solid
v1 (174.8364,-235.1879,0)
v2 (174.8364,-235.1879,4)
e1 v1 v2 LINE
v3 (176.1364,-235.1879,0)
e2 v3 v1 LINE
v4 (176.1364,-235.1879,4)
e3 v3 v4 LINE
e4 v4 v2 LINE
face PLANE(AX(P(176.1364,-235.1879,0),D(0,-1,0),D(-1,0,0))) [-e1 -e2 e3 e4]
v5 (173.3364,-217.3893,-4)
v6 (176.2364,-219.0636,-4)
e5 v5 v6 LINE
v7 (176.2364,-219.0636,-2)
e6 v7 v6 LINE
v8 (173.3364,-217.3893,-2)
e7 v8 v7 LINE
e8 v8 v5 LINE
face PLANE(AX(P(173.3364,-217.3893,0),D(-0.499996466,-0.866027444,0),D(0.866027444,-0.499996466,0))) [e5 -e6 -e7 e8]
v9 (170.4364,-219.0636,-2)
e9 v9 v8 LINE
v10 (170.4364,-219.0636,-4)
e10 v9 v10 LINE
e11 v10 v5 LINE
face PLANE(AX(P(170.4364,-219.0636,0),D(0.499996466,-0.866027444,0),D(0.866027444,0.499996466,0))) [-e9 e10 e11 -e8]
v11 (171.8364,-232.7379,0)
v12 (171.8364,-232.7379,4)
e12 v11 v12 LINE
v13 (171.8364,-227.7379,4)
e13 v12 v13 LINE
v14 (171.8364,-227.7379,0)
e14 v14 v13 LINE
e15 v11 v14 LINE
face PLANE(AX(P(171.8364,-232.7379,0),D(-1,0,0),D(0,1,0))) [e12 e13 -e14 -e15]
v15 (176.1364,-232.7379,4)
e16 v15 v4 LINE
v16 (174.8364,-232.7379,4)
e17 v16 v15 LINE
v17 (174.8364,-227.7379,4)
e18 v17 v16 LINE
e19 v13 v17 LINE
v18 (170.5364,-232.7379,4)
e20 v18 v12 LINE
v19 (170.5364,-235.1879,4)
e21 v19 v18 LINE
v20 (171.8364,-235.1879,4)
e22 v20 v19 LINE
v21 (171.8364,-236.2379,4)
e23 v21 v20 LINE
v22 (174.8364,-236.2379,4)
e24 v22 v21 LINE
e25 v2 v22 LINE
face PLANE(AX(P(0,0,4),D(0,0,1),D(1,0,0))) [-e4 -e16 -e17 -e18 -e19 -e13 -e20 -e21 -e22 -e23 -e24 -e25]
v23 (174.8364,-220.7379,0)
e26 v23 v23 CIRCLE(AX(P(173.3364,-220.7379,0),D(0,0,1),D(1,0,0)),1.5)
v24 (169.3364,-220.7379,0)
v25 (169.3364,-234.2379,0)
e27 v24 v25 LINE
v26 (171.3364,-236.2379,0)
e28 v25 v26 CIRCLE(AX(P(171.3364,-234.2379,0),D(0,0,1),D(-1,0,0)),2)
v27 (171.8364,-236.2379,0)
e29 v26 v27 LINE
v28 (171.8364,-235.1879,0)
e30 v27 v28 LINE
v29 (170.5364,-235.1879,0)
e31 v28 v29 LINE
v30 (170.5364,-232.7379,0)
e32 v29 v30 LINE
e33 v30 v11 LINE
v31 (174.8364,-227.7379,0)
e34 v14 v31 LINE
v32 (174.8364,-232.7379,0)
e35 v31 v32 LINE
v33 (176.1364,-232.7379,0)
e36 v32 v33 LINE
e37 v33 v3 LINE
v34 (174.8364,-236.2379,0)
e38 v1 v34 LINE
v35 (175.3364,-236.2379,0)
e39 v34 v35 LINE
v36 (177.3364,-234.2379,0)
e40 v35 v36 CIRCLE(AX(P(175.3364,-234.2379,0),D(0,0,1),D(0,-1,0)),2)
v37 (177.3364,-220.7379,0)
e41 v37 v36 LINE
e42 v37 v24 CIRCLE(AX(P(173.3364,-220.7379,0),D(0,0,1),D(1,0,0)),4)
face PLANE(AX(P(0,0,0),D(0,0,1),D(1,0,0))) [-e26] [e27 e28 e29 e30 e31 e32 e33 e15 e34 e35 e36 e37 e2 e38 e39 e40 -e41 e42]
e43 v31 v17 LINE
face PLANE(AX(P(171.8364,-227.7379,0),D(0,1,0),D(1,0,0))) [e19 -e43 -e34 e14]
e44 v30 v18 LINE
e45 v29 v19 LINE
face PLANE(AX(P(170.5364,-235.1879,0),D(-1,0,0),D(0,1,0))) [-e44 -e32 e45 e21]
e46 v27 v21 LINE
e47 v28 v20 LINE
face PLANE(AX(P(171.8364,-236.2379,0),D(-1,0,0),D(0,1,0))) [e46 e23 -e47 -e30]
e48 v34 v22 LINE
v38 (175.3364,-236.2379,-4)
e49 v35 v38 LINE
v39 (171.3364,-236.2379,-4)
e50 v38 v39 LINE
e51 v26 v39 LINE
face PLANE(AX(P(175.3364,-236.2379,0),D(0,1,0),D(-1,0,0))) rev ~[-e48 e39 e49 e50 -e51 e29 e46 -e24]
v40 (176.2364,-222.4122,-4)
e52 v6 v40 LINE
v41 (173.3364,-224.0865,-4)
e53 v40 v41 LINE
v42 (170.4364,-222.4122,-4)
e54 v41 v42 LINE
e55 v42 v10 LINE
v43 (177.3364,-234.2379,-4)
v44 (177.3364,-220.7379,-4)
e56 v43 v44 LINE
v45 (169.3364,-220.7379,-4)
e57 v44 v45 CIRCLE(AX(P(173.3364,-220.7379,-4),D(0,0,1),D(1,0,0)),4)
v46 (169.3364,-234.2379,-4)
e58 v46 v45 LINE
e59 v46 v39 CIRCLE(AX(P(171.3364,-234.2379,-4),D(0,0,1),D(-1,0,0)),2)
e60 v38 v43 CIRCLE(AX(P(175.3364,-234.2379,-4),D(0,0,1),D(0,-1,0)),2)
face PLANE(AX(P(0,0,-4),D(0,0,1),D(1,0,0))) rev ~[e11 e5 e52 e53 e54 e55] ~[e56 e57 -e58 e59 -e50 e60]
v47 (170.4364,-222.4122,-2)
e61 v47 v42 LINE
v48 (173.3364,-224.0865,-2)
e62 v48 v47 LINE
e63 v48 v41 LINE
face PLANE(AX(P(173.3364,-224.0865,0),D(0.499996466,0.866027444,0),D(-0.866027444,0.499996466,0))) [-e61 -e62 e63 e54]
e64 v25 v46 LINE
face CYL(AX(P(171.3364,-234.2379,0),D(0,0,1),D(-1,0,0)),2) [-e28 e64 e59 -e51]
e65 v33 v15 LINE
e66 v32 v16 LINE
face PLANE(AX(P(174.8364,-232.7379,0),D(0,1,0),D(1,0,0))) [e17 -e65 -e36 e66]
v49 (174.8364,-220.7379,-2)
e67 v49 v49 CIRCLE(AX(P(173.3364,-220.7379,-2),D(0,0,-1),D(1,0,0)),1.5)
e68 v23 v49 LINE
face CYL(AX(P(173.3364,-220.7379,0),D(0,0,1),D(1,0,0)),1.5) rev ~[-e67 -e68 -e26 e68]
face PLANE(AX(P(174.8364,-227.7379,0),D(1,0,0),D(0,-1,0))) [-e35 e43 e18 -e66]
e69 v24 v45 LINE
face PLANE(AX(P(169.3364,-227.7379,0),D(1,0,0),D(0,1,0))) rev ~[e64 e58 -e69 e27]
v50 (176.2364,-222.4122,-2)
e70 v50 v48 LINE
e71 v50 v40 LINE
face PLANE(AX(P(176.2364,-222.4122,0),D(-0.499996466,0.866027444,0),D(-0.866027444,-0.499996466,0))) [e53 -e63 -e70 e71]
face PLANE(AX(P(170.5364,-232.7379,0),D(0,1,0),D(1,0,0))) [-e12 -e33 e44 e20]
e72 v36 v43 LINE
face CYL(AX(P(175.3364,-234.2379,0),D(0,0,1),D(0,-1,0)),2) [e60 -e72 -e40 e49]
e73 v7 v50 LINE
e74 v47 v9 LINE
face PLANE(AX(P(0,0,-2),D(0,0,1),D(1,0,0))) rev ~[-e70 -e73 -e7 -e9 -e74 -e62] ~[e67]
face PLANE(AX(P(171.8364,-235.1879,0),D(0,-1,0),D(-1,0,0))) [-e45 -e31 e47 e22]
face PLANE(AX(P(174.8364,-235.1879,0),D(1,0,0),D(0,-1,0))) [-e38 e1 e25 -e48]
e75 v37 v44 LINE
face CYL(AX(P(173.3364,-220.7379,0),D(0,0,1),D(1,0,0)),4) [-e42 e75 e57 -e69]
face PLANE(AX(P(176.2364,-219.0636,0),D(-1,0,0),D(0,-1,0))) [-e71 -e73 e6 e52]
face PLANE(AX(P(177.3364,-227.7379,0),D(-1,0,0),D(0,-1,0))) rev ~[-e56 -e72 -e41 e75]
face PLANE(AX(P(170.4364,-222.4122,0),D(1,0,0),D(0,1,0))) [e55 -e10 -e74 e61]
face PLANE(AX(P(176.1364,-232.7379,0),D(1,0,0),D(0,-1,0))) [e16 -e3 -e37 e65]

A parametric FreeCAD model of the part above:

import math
import FreeCAD as App
import Part
import Sketcher

V = App.Vector
Q = App.Units.Quantity


def add_polygon(sketch, points):
    """Adds a closed chain of lines whose ends are joined by coincident constraints."""
    first, n = sketch.GeometryCount, len(points)
    for a, b in zip(points, points[1:] + points[:1]):
        sketch.addGeometry(Part.LineSegment(App.Vector(*a, 0), App.Vector(*b, 0)), False)
    for i in range(n):
        sketch.addConstraint(Sketcher.Constraint("Coincident", first + i, 2, first + (i + 1) % n, 1))

doc = App.newDocument("Part")
body = doc.addObject("PartDesign::Body", "Body")

# Sketch on XY plane
sketch1 = body.newObject("Sketcher::SketchObject", "Sketch")
sketch1.AttachmentSupport = (doc.getObject("XY_Plane"), [""])
sketch1.MapMode = "FlatFace"
add_polygon(sketch1, [(174.8, -232.7), (174.8, -227.7), (171.8, -227.7), (171.8, -232.7), (170.5, -232.7), (170.5, -235.2), (171.8, -235.2), (171.8, -236.2), (174.8, -236.2), (174.8, -235.2), (176.1, -235.2), (176.1, -232.7)])  # lines 0-11
sketch1.addConstraint(Sketcher.Constraint("Vertical", 0))
sketch1.addConstraint(Sketcher.Constraint("Horizontal", 1))
sketch1.addConstraint(Sketcher.Constraint("Vertical", 2))
sketch1.addConstraint(Sketcher.Constraint("Horizontal", 3))
sketch1.addConstraint(Sketcher.Constraint("Vertical", 4))
sketch1.addConstraint(Sketcher.Constraint("Horizontal", 5))
sketch1.addConstraint(Sketcher.Constraint("Vertical", 6))
sketch1.addConstraint(Sketcher.Constraint("Horizontal", 7))
sketch1.addConstraint(Sketcher.Constraint("Vertical", 8))
sketch1.addConstraint(Sketcher.Constraint("Horizontal", 9))
sketch1.addConstraint(Sketcher.Constraint("Vertical", 10))
sketch1.addConstraint(Sketcher.Constraint("Horizontal", 11))
sketch1.addConstraint(Sketcher.Constraint("Horizontal", 5, 2, 8, 2))
sketch1.addConstraint(Sketcher.Constraint("Horizontal", 3, 2, 10, 2))
sketch1.addConstraint(Sketcher.Constraint("Vertical", 2, 2, 5, 2))
sketch1.addConstraint(Sketcher.Constraint("Vertical", 0, 2, 7, 2))
sketch1.addConstraint(Sketcher.Constraint("Equal", 5, 9))
sketch1.addConstraint(Sketcher.Constraint("DistanceX", 1, 2, 1, 1, 3.0))
sketch1.addConstraint(Sketcher.Constraint("DistanceY", 0, 1, 0, 2, 5.0))
sketch1.addConstraint(Sketcher.Constraint("DistanceX", 3, 2, 3, 1, 1.3))
sketch1.addConstraint(Sketcher.Constraint("DistanceY", 4, 2, 4, 1, 2.45))
sketch1.addConstraint(Sketcher.Constraint("DistanceY", 6, 2, 6, 1, 1.05))
sketch1.addConstraint(Sketcher.Constraint("DistanceY", 0, 2, -1, 1, 227.738))
sketch1.addConstraint(Sketcher.Constraint("DistanceX", -1, 1, 0, 2, 174.8364))
pad1 = body.newObject("PartDesign::Pad", "Pad")
pad1.Profile = sketch1
pad1.Length = 4

# Sketch on XY plane
sketch2 = body.newObject("Sketcher::SketchObject", "Sketch001")
sketch2.AttachmentSupport = (doc.getObject("XY_Plane"), [""])
sketch2.MapMode = "FlatFace"
sketch2.addGeometry(Part.LineSegment(V(177.3, -234.2, 0), V(177.3, -220.7, 0)), False)
sketch2.addGeometry(Part.ArcOfCircle(Part.Circle(V(173.3, -220.7, 0), V(0, 0, 1), 4), math.radians(0), math.radians(180)), False)
sketch2.addGeometry(Part.LineSegment(V(169.3, -220.7, 0), V(169.3, -234.2, 0)), False)
sketch2.addGeometry(Part.ArcOfCircle(Part.Circle(V(171.3, -234.2, 0), V(0, 0, 1), 2), math.radians(180), math.radians(270)), False)
sketch2.addGeometry(Part.LineSegment(V(171.3, -236.2, 0), V(175.3, -236.2, 0)), False)
sketch2.addGeometry(Part.ArcOfCircle(Part.Circle(V(175.3, -234.2, 0), V(0, 0, 1), 2), math.radians(-90), math.radians(0)), False)
sketch2.addGeometry(Part.Circle(V(173.3, -220.7, 0), V(0, 0, 1), 1.5), False)
sketch2.addConstraint(Sketcher.Constraint("Tangent", 0, 2, 1, 1))
sketch2.addConstraint(Sketcher.Constraint("Tangent", 1, 2, 2, 1))
sketch2.addConstraint(Sketcher.Constraint("Tangent", 2, 2, 3, 1))
sketch2.addConstraint(Sketcher.Constraint("Tangent", 3, 2, 4, 1))
sketch2.addConstraint(Sketcher.Constraint("Tangent", 4, 2, 5, 1))
sketch2.addConstraint(Sketcher.Constraint("Tangent", 5, 2, 0, 1))
sketch2.addConstraint(Sketcher.Constraint("Vertical", 0))
sketch2.addConstraint(Sketcher.Constraint("Vertical", 2))
sketch2.addConstraint(Sketcher.Constraint("Horizontal", 4))
sketch2.addConstraint(Sketcher.Constraint("Coincident", 6, 3, 1, 3))
sketch2.addConstraint(Sketcher.Constraint("Equal", 3, 5))
sketch2.addConstraint(Sketcher.Constraint("Diameter", 6, 3.0))
sketch2.addConstraint(Sketcher.Constraint("Radius", 3, 2.0))
sketch2.addConstraint(Sketcher.Constraint("Radius", 1, 4.0))
sketch2.addConstraint(Sketcher.Constraint("DistanceY", 0, 1, 0, 2, 13.5))
sketch2.addConstraint(Sketcher.Constraint("DistanceY", 1, 3, -1, 1, 220.738))
sketch2.addConstraint(Sketcher.Constraint("DistanceX", -1, 1, 1, 3, 173.3364))
pad2 = body.newObject("PartDesign::Pad", "Pad001")
pad2.Profile = sketch2
pad2.Length = 4
pad2.Reversed = True

# Sketch on XY plane
sketch3 = body.newObject("Sketcher::SketchObject", "Sketch002")
sketch3.AttachmentSupport = (doc.getObject("XY_Plane"), [""])
sketch3.MapMode = "FlatFace"
add_polygon(sketch3, [(176.2, -219.1), (173.3, -217.4), (170.4, -219.1), (170.4, -222.4), (173.3, -224.1), (176.2, -222.4)])  # lines 0-5
sketch3.addGeometry(Part.Circle(V(173.3, -220.7, 0), V(0, 0, 1), 1.5), False)  # 6
sketch3.addConstraint(Sketcher.Constraint("Vertical", 2))
sketch3.addConstraint(Sketcher.Constraint("Vertical", 5))
sketch3.addConstraint(Sketcher.Constraint("Parallel", 0, 3))
sketch3.addConstraint(Sketcher.Constraint("Parallel", 1, 4))
sketch3.addConstraint(Sketcher.Constraint("Horizontal", 2, 2, 4, 2))
sketch3.addConstraint(Sketcher.Constraint("Horizontal", 1, 2, 5, 2))
sketch3.addConstraint(Sketcher.Constraint("Vertical", 6, 3, 0, 2))
sketch3.addConstraint(Sketcher.Constraint("Vertical", 0, 2, 3, 2))
sketch3.addConstraint(Sketcher.Constraint("Diameter", 6, 3.0))
sketch3.addConstraint(Sketcher.Constraint("DistanceX", 2, 2, 4, 2, 5.8))
sketch3.addConstraint(Sketcher.Constraint("Angle", 0, Q("150.0002 deg")))
sketch3.addConstraint(Sketcher.Constraint("DistanceY", 2, 2, 2, 1, 3.3486))
sketch3.addConstraint(Sketcher.Constraint("DistanceY", 6, 3, -1, 1, 220.738))
sketch3.addConstraint(Sketcher.Constraint("DistanceX", -1, 1, 6, 3, 173.3364))
sketch3.addConstraint(Sketcher.Constraint("DistanceY", 0, 2, -1, 1, 217.3893))
pocket1 = body.newObject("PartDesign::Pocket", "Pocket")
pocket1.Profile = sketch3
pocket1.Length = 4

# Sketch on XY plane
sketch4 = body.newObject("Sketcher::SketchObject", "Sketch003")
sketch4.AttachmentSupport = (doc.getObject("XY_Plane"), [""])
sketch4.MapMode = "FlatFace"
add_polygon(sketch4, [(176.2, -219.1), (173.3, -217.4), (170.4, -219.1), (170.4, -222.4), (173.3, -224.1), (176.2, -222.4)])  # lines 0-5
sketch4.addGeometry(Part.Circle(V(173.3, -220.7, 0), V(0, 0, 1), 1.5), False)  # 6
sketch4.addConstraint(Sketcher.Constraint("Vertical", 2))
sketch4.addConstraint(Sketcher.Constraint("Vertical", 5))
sketch4.addConstraint(Sketcher.Constraint("Parallel", 0, 3))
sketch4.addConstraint(Sketcher.Constraint("Parallel", 1, 4))
sketch4.addConstraint(Sketcher.Constraint("Horizontal", 2, 2, 4, 2))
sketch4.addConstraint(Sketcher.Constraint("Horizontal", 1, 2, 5, 2))
sketch4.addConstraint(Sketcher.Constraint("Vertical", 6, 3, 0, 2))
sketch4.addConstraint(Sketcher.Constraint("Vertical", 0, 2, 3, 2))
sketch4.addConstraint(Sketcher.Constraint("Diameter", 6, 3.0))
sketch4.addConstraint(Sketcher.Constraint("DistanceX", 2, 2, 4, 2, 5.8))
sketch4.addConstraint(Sketcher.Constraint("Angle", 0, Q("150.0002 deg")))
sketch4.addConstraint(Sketcher.Constraint("DistanceY", 2, 2, 2, 1, 3.3486))
sketch4.addConstraint(Sketcher.Constraint("DistanceY", 6, 3, -1, 1, 220.738))
sketch4.addConstraint(Sketcher.Constraint("DistanceX", -1, 1, 6, 3, 173.3364))
sketch4.addConstraint(Sketcher.Constraint("DistanceY", 0, 2, -1, 1, 217.3893))
pad3 = body.newObject("PartDesign::Pad", "Pad002")
pad3.Profile = sketch4
pad3.Length = 2
pad3.Reversed = True

doc.recompute()
